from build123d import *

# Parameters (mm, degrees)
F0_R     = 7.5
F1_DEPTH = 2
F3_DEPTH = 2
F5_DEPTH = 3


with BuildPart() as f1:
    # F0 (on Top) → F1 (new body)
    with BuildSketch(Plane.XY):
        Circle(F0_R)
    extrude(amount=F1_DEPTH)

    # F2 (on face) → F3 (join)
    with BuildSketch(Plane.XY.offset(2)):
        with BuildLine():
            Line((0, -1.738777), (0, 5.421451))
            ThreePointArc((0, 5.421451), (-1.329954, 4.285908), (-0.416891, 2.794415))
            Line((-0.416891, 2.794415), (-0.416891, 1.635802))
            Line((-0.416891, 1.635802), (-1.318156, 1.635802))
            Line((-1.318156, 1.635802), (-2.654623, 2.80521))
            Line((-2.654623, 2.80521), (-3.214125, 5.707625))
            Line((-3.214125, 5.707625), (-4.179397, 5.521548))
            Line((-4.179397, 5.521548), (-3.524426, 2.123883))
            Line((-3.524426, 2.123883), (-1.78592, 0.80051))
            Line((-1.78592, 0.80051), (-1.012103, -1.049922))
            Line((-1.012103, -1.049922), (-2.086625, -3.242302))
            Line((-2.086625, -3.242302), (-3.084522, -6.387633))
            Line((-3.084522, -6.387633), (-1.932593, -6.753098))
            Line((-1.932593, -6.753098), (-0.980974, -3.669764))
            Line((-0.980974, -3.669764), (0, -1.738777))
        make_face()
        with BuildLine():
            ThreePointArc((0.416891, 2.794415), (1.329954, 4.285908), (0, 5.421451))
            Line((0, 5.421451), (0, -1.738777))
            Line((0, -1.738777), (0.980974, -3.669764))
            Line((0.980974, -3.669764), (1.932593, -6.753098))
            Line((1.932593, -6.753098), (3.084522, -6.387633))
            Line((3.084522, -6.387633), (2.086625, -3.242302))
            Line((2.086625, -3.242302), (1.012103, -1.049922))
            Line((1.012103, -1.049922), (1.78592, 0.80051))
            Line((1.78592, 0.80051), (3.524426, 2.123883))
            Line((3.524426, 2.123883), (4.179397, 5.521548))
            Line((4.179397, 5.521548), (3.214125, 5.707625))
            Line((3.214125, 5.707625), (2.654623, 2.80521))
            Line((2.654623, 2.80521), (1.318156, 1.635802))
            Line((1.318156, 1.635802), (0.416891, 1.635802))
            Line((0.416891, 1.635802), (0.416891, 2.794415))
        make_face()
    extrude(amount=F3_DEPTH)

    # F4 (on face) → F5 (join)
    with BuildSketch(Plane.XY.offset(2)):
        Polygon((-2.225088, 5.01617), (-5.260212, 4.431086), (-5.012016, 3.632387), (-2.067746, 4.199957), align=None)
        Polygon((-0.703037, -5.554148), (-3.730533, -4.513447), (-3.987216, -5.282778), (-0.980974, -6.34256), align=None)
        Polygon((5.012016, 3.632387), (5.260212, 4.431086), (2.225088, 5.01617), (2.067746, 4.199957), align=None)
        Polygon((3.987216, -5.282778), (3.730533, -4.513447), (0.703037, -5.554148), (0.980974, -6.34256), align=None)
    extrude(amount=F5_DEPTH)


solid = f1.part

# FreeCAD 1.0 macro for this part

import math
import FreeCAD as App
import Part
import Sketcher

V = App.Vector
Q = App.Units.Quantity

doc = App.newDocument("Part")
body = doc.addObject("PartDesign::Body", "Body")

sketch1 = doc.addObject("Sketcher::SketchObject", "Sketch")
body.addObject(sketch1)
sketch1.AttachmentSupport = (doc.XY_Plane, [""])
sketch1.MapMode = "FlatFace"
sketch1.addGeometry(Part.Circle(V(0, 0, 0), V(0, 0, 1), 8), False)
sketch1.addConstraint([
    Sketcher.Constraint("Coincident", 0, 3, -1, 1),
    Sketcher.Constraint("Diameter", 0, Q("15 mm")),
])
pad1 = doc.addObject("PartDesign::Pad", "Pad")
body.addObject(pad1)
pad1.Profile = sketch1
pad1.Length = 2

sketch2 = doc.addObject("Sketcher::SketchObject", "Sketch001")
body.addObject(sketch2)
sketch2.AttachmentSupport = (doc.XY_Plane, [""])
sketch2.MapMode = "FlatFace"
sketch2.AttachmentOffset = App.Placement(V(0, 0, 2), App.Rotation())
sketch2.addGeometry([
    Part.ArcOfCircle(Part.Circle(V(0, 4.1, 0), V(0, 0, 1), 1.3), math.radians(90), math.radians(252)),
    Part.LineSegment(V(-0.4, 2.8, 0), V(-0.4, 1.6, 0)),
    Part.LineSegment(V(-0.4, 1.6, 0), V(-1.3, 1.6, 0)),
    Part.LineSegment(V(-1.3, 1.6, 0), V(-2.7, 2.8, 0)),
    Part.LineSegment(V(-2.7, 2.8, 0), V(-3.2, 5.7, 0)),
    Part.LineSegment(V(-3.2, 5.7, 0), V(-4.2, 5.5, 0)),
    Part.LineSegment(V(-4.2, 5.5, 0), V(-3.5, 2.1, 0)),
    Part.LineSegment(V(-3.5, 2.1, 0), V(-1.8, 0.8, 0)),
    Part.LineSegment(V(-1.8, 0.8, 0), V(-1, -1, 0)),
    Part.LineSegment(V(-1, -1, 0), V(-2.1, -3.2, 0)),
    Part.LineSegment(V(-2.1, -3.2, 0), V(-3.1, -6.4, 0)),
    Part.LineSegment(V(-3.1, -6.4, 0), V(-1.9, -6.8, 0)),
    Part.LineSegment(V(-1.9, -6.8, 0), V(-1, -3.7, 0)),
    Part.LineSegment(V(-1, -3.7, 0), V(0, -1.7, 0)),
    Part.LineSegment(V(0, -1.7, 0), V(1, -3.7, 0)),
    Part.LineSegment(V(1, -3.7, 0), V(1.9, -6.8, 0)),
    Part.LineSegment(V(1.9, -6.8, 0), V(3.1, -6.4, 0)),
    Part.LineSegment(V(3.1, -6.4, 0), V(2.1, -3.2, 0)),
    Part.LineSegment(V(2.1, -3.2, 0), V(1, -1, 0)),
    Part.LineSegment(V(1, -1, 0), V(1.8, 0.8, 0)),
    Part.LineSegment(V(1.8, 0.8, 0), V(3.5, 2.1, 0)),
    Part.LineSegment(V(3.5, 2.1, 0), V(4.2, 5.5, 0)),
    Part.LineSegment(V(4.2, 5.5, 0), V(3.2, 5.7, 0)),
    Part.LineSegment(V(3.2, 5.7, 0), V(2.7, 2.8, 0)),
    Part.LineSegment(V(2.7, 2.8, 0), V(1.3, 1.6, 0)),
    Part.LineSegment(V(1.3, 1.6, 0), V(0.4, 1.6, 0)),
    Part.LineSegment(V(0.4, 1.6, 0), V(0.4, 2.8, 0)),
    Part.ArcOfCircle(Part.Circle(V(0, 4.1, 0), V(0, 0, 1), 1.3), math.radians(-72), math.radians(90)),
], False)
sketch2.addConstraint([
    Sketcher.Constraint("Coincident", 0, 2, 1, 1),
    Sketcher.Constraint("Coincident", 1, 2, 2, 1),
    Sketcher.Constraint("Coincident", 2, 2, 3, 1),
    Sketcher.Constraint("Coincident", 3, 2, 4, 1),
    Sketcher.Constraint("Coincident", 4, 2, 5, 1),
    Sketcher.Constraint("Coincident", 5, 2, 6, 1),
    Sketcher.Constraint("Coincident", 6, 2, 7, 1),
    Sketcher.Constraint("Coincident", 7, 2, 8, 1),
    Sketcher.Constraint("Coincident", 8, 2, 9, 1),
    Sketcher.Constraint("Coincident", 9, 2, 10, 1),
    Sketcher.Constraint("Coincident", 10, 2, 11, 1),
    Sketcher.Constraint("Coincident", 11, 2, 12, 1),
    Sketcher.Constraint("Coincident", 12, 2, 13, 1),
    Sketcher.Constraint("Coincident", 13, 2, 14, 1),
    Sketcher.Constraint("Coincident", 14, 2, 15, 1),
    Sketcher.Constraint("Coincident", 15, 2, 16, 1),
    Sketcher.Constraint("Coincident", 16, 2, 17, 1),
    Sketcher.Constraint("Coincident", 17, 2, 18, 1),
    Sketcher.Constraint("Coincident", 18, 2, 19, 1),
    Sketcher.Constraint("Coincident", 19, 2, 20, 1),
    Sketcher.Constraint("Coincident", 20, 2, 21, 1),
    Sketcher.Constraint("Coincident", 21, 2, 22, 1),
    Sketcher.Constraint("Coincident", 22, 2, 23, 1),
    Sketcher.Constraint("Coincident", 23, 2, 24, 1),
    Sketcher.Constraint("Coincident", 24, 2, 25, 1),
    Sketcher.Constraint("Coincident", 25, 2, 26, 1),
    Sketcher.Constraint("Coincident", 26, 2, 27, 1),
    Sketcher.Constraint("Tangent", 27, 2, 0, 1),
    Sketcher.Constraint("Vertical", 1),
    Sketcher.Constraint("Horizontal", 2),
    Sketcher.Constraint("Horizontal", 25),
    Sketcher.Constraint("Vertical", 26),
    Sketcher.Constraint("Equal", 0, 27),
    Sketcher.Constraint("Symmetric", 12, 2, 14, 2, -2),
    Sketcher.Constraint("Symmetric", 11, 2, 15, 2, -2),
    Sketcher.Constraint("Symmetric", 10, 2, 16, 2, -2),
    Sketcher.Constraint("Symmetric", 9, 2, 17, 2, -2),
    Sketcher.Constraint("Symmetric", 8, 2, 18, 2, -2),
    Sketcher.Constraint("Symmetric", 7, 2, 19, 2, -2),
    Sketcher.Constraint("Symmetric", 6, 2, 20, 2, -2),
    Sketcher.Constraint("Symmetric", 5, 2, 21, 2, -2),
    Sketcher.Constraint("Symmetric", 4, 2, 22, 2, -2),
    Sketcher.Constraint("Symmetric", 3, 2, 23, 2, -2),
    Sketcher.Constraint("Symmetric", 2, 2, 24, 2, -2),
    Sketcher.Constraint("Symmetric", 0, 2, 26, 2, -2),
    Sketcher.Constraint("PointOnObject", 13, 2, -2),
    Sketcher.Constraint("PointOnObject", 27, 2, -2),
    Sketcher.Constraint("Perpendicular", 4, 5),
    Sketcher.Constraint("Perpendicular", 5, 6),
    Sketcher.Constraint("Perpendicular", 10, 11),
    Sketcher.Constraint("Radius", 0, Q("1.346597 mm")),
    Sketcher.Constraint("DistanceY", 9, 2, -1, 1, Q("3.242302 mm")),
    Sketcher.Constraint("DistanceY", 7, 2, 3, 2, Q("2.0047 mm")),
    Sketcher.Constraint("DistanceX", 6, 2, 9, 2, Q("1.437801 mm")),
    Sketcher.Constraint("DistanceY", 11, 2, 2, 2, Q("8.3889 mm")),
    Sketcher.Constraint("DistanceX", 9, 2, 14, 2, Q("3.067599 mm")),
    Sketcher.Constraint("DistanceX", 22, 2, 20, 2, Q("0.310301 mm")),
    Sketcher.Constraint("Distance", 4, Q("2.955851 mm")),
    Sketcher.Constraint("Distance", 6, Q("3.460219 mm")),
    Sketcher.Constraint("DistanceX", 2, 2, 2, 1, Q("0.901265 mm")),
    Sketcher.Constraint("DistanceY", 1, 2, 1, 1, Q("1.158613 mm")),
    Sketcher.Constraint("DistanceX", 0, 2, -1, 1, Q("0.416891 mm")),
    Sketcher.Constraint("DistanceY", -1, 1, 3, 2, Q("2.80521 mm")),
    Sketcher.Constraint("DistanceX", 7, 2, -1, 1, Q("1.78592 mm")),
    Sketcher.Constraint("DistanceY", -1, 1, 27, 2, Q("5.421451 mm")),
    Sketcher.Constraint("DistanceX", 3, 2, 0, 2, Q("2.237732 mm")),
    Sketcher.Constraint("DistanceY", 27, 3, 4, 2, Q("1.632771 mm")),
    Sketcher.Constraint("DistanceX", 8, 2, 1, 2, Q("0.595212 mm")),
    Sketcher.Constraint("DistanceY", 9, 2, 8, 2, Q("2.19238 mm")),
    Sketcher.Constraint("DistanceY", 10, 2, 9, 2, Q("3.145331 mm")),
    Sketcher.Constraint("DistanceX", 10, 2, 8, 2, Q("2.072419 mm")),
    Sketcher.Constraint("DistanceY", 12, 2, 9, 2, Q("0.427462 mm")),
    Sketcher.Constraint("DistanceY", 13, 2, 1, 2, Q("3.374579 mm")),
])
pad2 = doc.addObject("PartDesign::Pad", "Pad001")
body.addObject(pad2)
pad2.Profile = sketch2
pad2.Length = 2

sketch3 = doc.addObject("Sketcher::SketchObject", "Sketch002")
body.addObject(sketch3)
sketch3.AttachmentSupport = (doc.XY_Plane, [""])
sketch3.MapMode = "FlatFace"
sketch3.AttachmentOffset = App.Placement(V(0, 0, 2), App.Rotation())
sketch3.addGeometry([
    Part.LineSegment(V(-2.2, 5, 0), V(-5.3, 4.4, 0)),
    Part.LineSegment(V(-5.3, 4.4, 0), V(-5, 3.6, 0)),
    Part.LineSegment(V(-5, 3.6, 0), V(-2.1, 4.2, 0)),
    Part.LineSegment(V(-2.1, 4.2, 0), V(-2.2, 5, 0)),
    Part.LineSegment(V(-0.7, -5.6, 0), V(-3.7, -4.5, 0)),
    Part.LineSegment(V(-3.7, -4.5, 0), V(-4, -5.3, 0)),
    Part.LineSegment(V(-4, -5.3, 0), V(-1, -6.3, 0)),
    Part.LineSegment(V(-1, -6.3, 0), V(-0.7, -5.6, 0)),
    Part.LineSegment(V(5, 3.6, 0), V(5.3, 4.4, 0)),
    Part.LineSegment(V(5.3, 4.4, 0), V(2.2, 5, 0)),
    Part.LineSegment(V(2.2, 5, 0), V(2.1, 4.2, 0)),
    Part.LineSegment(V(2.1, 4.2, 0), V(5, 3.6, 0)),
    Part.LineSegment(V(4, -5.3, 0), V(3.7, -4.5, 0)),
    Part.LineSegment(V(3.7, -4.5, 0), V(0.7, -5.6, 0)),
    Part.LineSegment(V(0.7, -5.6, 0), V(1, -6.3, 0)),
    Part.LineSegment(V(1, -6.3, 0), V(4, -5.3, 0)),
], False)
sketch3.addConstraint([
    Sketcher.Constraint("Coincident", 0, 2, 1, 1),
    Sketcher.Constraint("Coincident", 1, 2, 2, 1),
    Sketcher.Constraint("Coincident", 2, 2, 3, 1),
    Sketcher.Constraint("Coincident", 3, 2, 0, 1),
    Sketcher.Constraint("Coincident", 4, 2, 5, 1),
    Sketcher.Constraint("Coincident", 5, 2, 6, 1),
    Sketcher.Constraint("Coincident", 6, 2, 7, 1),
    Sketcher.Constraint("Coincident", 7, 2, 4, 1),
    Sketcher.Constraint("Coincident", 8, 2, 9, 1),
    Sketcher.Constraint("Coincident", 9, 2, 10, 1),
    Sketcher.Constraint("Coincident", 10, 2, 11, 1),
    Sketcher.Constraint("Coincident", 11, 2, 8, 1),
    Sketcher.Constraint("Coincident", 12, 2, 13, 1),
    Sketcher.Constraint("Coincident", 13, 2, 14, 1),
    Sketcher.Constraint("Coincident", 14, 2, 15, 1),
    Sketcher.Constraint("Coincident", 15, 2, 12, 1),
    Sketcher.Constraint("Symmetric", 0, 2, 8, 2, -2),
    Sketcher.Constraint("Symmetric", 3, 2, 9, 2, -2),
    Sketcher.Constraint("Symmetric", 2, 2, 10, 2, -2),
    Sketcher.Constraint("Symmetric", 1, 2, 11, 2, -2),
    Sketcher.Constraint("Symmetric", 4, 2, 12, 2, -2),
    Sketcher.Constraint("Symmetric", 7, 2, 13, 2, -2),
    Sketcher.Constraint("Symmetric", 6, 2, 14, 2, -2),
    Sketcher.Constraint("Symmetric", 5, 2, 15, 2, -2),
    Sketcher.Constraint("Parallel", 0, 2),
    Sketcher.Constraint("Perpendicular", 2, 3),
    Sketcher.Constraint("Perpendicular", 6, 7),
    Sketcher.Constraint("DistanceY", 1, 2, 0, 2, Q("0.798699 mm")),
    Sketcher.Constraint("DistanceX", 1, 2, 5, 2, Q("1.0248 mm")),
    Sketcher.Constraint("DistanceY", 7, 2, 4, 2, Q("1.040701 mm")),
    Sketcher.Constraint("DistanceX", 3, 2, 8, 2, Q("7.4853 mm")),
    Sketcher.Constraint("Distance", 3, Q("0.83124 mm")),
    Sketcher.Constraint("Distance", 5, Q("0.811022 mm")),
    Sketcher.Constraint("DistanceX", 3, 2, -1, 1, Q("2.225088 mm")),
    Sketcher.Constraint("DistanceY", -1, 1, 3, 2, Q("5.01617 mm")),
    Sketcher.Constraint("DistanceY", 5, 2, -1, 1, Q("5.282778 mm")),
    Sketcher.Constraint("DistanceY", 6, 2, -1, 1, Q("6.34256 mm")),
    Sketcher.Constraint("DistanceX", 1, 2, 2, 2, Q("2.94427 mm")),
    Sketcher.Constraint("DistanceX", 0, 2, 4, 2, Q("1.529679 mm")),
    Sketcher.Constraint("DistanceX", 4, 2, 6, 2, Q("2.749559 mm")),
])
pad3 = doc.addObject("PartDesign::Pad", "Pad002")
body.addObject(pad3)
pad3.Profile = sketch3
pad3.Length = 3

doc.recompute()
